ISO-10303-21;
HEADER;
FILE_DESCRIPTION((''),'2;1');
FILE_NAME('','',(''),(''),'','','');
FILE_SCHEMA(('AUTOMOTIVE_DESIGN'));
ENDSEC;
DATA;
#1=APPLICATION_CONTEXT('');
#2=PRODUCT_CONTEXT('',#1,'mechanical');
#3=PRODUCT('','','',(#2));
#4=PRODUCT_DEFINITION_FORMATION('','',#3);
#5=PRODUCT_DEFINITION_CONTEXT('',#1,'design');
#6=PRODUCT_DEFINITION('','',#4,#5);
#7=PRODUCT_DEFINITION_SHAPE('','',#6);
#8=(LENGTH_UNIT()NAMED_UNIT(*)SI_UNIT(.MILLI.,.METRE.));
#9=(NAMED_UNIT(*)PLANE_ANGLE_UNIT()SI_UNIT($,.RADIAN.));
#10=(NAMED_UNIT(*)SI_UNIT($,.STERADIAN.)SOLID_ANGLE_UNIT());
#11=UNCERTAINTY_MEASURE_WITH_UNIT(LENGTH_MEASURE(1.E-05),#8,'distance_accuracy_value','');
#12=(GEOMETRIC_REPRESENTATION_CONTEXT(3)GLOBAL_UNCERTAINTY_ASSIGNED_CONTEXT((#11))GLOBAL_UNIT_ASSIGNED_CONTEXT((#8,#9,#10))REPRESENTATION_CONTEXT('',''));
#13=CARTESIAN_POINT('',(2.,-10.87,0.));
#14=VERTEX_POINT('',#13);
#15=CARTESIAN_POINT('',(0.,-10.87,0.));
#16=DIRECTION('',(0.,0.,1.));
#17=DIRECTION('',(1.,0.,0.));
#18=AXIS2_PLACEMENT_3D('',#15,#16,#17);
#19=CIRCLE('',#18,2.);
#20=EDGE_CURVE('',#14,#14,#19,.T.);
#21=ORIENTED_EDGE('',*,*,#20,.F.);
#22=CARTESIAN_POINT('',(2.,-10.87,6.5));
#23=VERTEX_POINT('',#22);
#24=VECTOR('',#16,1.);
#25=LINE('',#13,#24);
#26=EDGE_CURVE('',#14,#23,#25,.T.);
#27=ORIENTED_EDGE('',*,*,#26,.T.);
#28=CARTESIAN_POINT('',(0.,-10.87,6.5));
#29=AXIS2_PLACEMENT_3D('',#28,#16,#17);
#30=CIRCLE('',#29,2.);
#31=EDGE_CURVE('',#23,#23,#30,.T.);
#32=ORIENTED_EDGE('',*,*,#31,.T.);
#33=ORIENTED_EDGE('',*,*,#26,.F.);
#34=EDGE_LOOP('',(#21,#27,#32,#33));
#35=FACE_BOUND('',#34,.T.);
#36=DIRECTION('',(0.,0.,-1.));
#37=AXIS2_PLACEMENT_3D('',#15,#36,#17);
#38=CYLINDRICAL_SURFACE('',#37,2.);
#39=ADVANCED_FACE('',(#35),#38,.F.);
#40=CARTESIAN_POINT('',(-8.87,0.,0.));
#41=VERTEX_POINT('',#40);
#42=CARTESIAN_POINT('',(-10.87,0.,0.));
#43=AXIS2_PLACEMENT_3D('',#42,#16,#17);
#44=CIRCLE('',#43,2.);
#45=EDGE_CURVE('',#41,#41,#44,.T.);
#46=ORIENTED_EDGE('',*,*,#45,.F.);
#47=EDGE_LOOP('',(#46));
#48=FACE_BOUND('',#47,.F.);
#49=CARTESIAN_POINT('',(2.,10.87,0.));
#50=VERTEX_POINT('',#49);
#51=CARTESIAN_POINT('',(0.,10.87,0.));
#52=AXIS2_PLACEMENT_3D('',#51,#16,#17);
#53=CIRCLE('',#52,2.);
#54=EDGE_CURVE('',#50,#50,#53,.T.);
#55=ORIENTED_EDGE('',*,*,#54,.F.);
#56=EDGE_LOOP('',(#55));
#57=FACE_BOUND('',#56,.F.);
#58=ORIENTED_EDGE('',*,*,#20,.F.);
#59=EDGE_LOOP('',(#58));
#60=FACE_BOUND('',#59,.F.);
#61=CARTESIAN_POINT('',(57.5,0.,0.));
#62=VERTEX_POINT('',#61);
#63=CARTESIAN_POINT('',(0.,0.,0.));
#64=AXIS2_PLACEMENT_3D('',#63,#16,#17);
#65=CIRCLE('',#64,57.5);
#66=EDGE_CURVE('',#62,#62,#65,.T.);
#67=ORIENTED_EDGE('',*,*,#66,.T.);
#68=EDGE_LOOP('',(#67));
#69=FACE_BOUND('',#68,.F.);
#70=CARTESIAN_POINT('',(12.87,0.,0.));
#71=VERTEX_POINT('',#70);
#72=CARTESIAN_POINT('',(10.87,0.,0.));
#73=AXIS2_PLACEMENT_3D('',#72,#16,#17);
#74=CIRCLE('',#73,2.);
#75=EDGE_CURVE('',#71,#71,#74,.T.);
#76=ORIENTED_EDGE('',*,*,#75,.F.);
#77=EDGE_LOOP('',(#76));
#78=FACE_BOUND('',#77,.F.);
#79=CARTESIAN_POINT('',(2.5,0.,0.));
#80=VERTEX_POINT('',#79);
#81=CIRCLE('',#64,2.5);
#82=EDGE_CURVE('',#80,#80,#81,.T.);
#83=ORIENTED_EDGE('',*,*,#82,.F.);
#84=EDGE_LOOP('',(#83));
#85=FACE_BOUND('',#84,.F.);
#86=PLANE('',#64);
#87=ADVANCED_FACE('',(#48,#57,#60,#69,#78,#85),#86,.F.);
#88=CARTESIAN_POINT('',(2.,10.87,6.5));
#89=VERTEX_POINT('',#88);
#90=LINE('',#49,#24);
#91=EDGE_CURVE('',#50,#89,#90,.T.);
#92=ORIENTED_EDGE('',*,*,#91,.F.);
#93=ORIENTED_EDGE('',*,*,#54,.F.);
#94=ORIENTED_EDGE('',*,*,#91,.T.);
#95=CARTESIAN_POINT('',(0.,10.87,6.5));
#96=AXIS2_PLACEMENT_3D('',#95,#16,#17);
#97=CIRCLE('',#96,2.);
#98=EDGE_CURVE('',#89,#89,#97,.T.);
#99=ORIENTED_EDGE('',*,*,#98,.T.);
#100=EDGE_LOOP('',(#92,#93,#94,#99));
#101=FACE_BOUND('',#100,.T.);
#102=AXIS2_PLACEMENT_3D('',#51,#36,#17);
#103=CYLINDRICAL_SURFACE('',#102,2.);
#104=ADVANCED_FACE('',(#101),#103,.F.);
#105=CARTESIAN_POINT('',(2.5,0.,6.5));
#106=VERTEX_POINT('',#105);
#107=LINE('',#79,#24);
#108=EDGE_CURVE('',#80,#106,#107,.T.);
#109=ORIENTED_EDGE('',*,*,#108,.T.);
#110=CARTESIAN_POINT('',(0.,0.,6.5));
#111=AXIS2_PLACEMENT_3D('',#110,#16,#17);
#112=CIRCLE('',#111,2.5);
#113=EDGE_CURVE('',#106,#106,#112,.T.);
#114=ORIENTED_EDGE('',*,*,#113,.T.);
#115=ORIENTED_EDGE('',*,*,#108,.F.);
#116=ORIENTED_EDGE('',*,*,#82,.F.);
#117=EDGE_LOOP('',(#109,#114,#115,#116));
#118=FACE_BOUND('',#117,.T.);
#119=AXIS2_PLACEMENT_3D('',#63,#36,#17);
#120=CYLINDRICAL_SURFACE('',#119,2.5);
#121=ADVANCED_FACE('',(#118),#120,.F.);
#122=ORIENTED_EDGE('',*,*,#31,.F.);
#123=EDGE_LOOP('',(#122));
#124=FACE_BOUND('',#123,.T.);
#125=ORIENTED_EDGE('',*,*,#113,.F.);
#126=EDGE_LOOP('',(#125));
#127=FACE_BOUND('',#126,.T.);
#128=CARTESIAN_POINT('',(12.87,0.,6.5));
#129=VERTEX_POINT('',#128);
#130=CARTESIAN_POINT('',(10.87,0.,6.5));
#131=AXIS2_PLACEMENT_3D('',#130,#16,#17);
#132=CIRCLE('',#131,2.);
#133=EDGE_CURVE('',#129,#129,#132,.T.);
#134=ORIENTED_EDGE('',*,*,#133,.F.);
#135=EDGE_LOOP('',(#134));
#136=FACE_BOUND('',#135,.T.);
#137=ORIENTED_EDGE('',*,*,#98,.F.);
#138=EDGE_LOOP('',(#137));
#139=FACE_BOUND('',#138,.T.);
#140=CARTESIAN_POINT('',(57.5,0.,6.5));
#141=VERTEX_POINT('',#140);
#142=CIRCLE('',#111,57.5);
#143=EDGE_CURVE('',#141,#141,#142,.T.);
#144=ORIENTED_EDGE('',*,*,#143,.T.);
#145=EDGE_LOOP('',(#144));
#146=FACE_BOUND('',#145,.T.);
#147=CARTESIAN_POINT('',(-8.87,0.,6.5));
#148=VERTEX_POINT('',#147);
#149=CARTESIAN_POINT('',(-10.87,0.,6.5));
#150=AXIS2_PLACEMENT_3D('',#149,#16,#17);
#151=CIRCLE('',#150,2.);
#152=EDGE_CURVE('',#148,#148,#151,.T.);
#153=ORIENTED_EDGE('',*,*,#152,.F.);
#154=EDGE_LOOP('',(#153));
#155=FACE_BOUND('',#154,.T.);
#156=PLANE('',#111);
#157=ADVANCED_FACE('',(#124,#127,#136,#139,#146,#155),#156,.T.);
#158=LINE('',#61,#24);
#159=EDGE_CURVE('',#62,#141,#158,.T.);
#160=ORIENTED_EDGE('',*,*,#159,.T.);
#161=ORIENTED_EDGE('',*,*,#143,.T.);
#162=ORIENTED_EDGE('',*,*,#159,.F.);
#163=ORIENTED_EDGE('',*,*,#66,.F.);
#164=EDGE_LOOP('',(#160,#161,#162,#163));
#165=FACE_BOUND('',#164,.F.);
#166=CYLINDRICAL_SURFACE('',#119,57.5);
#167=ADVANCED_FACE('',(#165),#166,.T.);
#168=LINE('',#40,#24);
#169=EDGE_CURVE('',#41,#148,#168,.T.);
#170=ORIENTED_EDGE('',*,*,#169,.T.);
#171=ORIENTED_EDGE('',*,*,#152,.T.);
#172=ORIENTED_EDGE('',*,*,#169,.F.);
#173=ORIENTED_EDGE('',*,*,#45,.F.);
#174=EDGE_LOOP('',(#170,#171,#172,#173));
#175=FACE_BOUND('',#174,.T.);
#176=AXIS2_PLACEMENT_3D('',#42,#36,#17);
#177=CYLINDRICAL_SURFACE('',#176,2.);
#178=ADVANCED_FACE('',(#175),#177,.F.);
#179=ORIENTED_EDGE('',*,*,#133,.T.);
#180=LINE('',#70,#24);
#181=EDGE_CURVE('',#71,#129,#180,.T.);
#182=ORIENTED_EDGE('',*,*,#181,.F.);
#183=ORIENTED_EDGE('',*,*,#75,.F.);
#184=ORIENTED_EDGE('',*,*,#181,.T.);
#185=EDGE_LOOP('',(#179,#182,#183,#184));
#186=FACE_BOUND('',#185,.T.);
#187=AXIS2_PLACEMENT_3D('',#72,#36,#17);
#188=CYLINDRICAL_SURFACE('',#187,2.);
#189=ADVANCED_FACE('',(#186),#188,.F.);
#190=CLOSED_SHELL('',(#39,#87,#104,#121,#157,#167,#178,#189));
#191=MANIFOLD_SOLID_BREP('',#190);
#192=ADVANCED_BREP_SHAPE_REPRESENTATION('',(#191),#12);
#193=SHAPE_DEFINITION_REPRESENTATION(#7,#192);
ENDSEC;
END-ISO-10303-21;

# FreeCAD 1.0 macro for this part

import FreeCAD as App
import Part
import Sketcher
from FreeCAD import Vector
Q = App.Units.Quantity

doc = App.newDocument("Part")
body = doc.addObject("PartDesign::Body", "Body")

# Sketch on XY plane
sketch1 = body.newObject("Sketcher::SketchObject", "Sketch")
sketch1.AttachmentSupport = (doc.getObject("XY_Plane"), [""])
sketch1.MapMode = "FlatFace"
sketch1.addGeometry([
    Part.Circle(Vector(0, 0, 0), Vector(0, 0, 1), 57.5),  # 0
    Part.Circle(Vector(0, -10.9, 0), Vector(0, 0, 1), 2),  # 1
    Part.Circle(Vector(-10.9, 0, 0), Vector(0, 0, 1), 2),  # 2
    Part.Circle(Vector(0, 0, 0), Vector(0, 0, 1), 2.5),  # 3
    Part.Circle(Vector(10.9, 0, 0), Vector(0, 0, 1), 2),  # 4
    Part.Circle(Vector(0, 10.9, 0), Vector(0, 0, 1), 2),  # 5
], False)
sketch1.addConstraint([
    Sketcher.Constraint("Coincident", 0, 3, -1, 1),
    Sketcher.Constraint("Coincident", 3, 3, -1, 1),
    Sketcher.Constraint("Equal", 1, 2),
    Sketcher.Constraint("Equal", 2, 4),
    Sketcher.Constraint("Equal", 4, 5),
    Sketcher.Constraint("Symmetric", 2, 3, 4, 3, -1, 1),
    Sketcher.Constraint("Symmetric", 1, 3, 5, 3, -1, 1),
    Sketcher.Constraint("PointOnObject", 1, 3, -2),
    Sketcher.Constraint("PointOnObject", 2, 3, -1),
    Sketcher.Constraint("Diameter", 0, Q("115 mm")),
    Sketcher.Constraint("Diameter", 1, Q("4 mm")),
    Sketcher.Constraint("Diameter", 3, Q("5 mm")),
    Sketcher.Constraint("DistanceY", 1, 3, -1, 1, Q("10.87 mm")),
    Sketcher.Constraint("DistanceX", 2, 3, -1, 1, Q("10.87 mm")),
])
pad1 = body.newObject("PartDesign::Pad", "Pad")
pad1.Profile = sketch1
pad1.Length = 6.5

doc.recompute()
